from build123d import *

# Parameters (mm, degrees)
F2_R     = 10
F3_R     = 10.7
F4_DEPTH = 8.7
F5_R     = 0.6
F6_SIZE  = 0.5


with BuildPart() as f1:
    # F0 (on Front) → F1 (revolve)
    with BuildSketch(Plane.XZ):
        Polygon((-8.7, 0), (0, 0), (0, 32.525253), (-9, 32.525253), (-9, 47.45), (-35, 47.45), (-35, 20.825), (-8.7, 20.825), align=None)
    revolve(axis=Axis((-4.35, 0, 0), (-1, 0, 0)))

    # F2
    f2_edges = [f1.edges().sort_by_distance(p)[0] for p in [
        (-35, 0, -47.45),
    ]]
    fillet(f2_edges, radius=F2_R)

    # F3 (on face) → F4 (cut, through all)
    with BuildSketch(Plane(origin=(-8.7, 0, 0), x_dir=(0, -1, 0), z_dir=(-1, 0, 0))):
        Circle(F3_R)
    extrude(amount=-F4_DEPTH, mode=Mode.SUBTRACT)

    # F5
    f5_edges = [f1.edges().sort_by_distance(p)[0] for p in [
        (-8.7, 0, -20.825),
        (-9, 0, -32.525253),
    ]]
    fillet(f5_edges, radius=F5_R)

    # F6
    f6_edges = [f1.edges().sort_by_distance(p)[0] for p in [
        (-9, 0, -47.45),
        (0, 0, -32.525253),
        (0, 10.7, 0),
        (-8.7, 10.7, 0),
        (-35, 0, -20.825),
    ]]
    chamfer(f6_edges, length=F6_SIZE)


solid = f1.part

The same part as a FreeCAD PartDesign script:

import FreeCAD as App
import Part
import Sketcher

V = App.Vector


def edges_at(feature, points):
    """Names of the edges that pass closest to the given points."""
    edges = feature.Shape.Edges
    near = lambda p: min(range(len(edges)), key=lambda i: edges[i].distToShape(Part.Vertex(*p))[0])
    return sorted({f"Edge{near(p) + 1}" for p in points})

doc = App.newDocument("Part")
body = doc.addObject("PartDesign::Body", "Body")

# Sketch on XZ plane
sketch1 = body.newObject("Sketcher::SketchObject", "Sketch")
sketch1.AttachmentSupport = (doc.getObject("XZ_Plane"), [""])
sketch1.MapMode = "FlatFace"
sketch1.addGeometry([
    Part.LineSegment(V(-9, 0, 0), V(0, 0, 0)),  # 0
    Part.LineSegment(V(0, 0, 0), V(0, 33, 0)),  # 1
    Part.LineSegment(V(0, 33, 0), V(-9, 33, 0)),  # 2
    Part.LineSegment(V(-9, 33, 0), V(-9, 47, 0)),  # 3
    Part.LineSegment(V(-9, 47, 0), V(-35, 47, 0)),  # 4
    Part.LineSegment(V(-35, 47, 0), V(-35, 21, 0)),  # 5
    Part.LineSegment(V(-35, 21, 0), V(-9, 21, 0)),  # 6
    Part.LineSegment(V(-9, 21, 0), V(-9, 0, 0)),  # 7
], False)
sketch1.addConstraint([
    Sketcher.Constraint("Coincident", 0, 2, 1, 1),
    Sketcher.Constraint("Coincident", 1, 2, 2, 1),
    Sketcher.Constraint("Coincident", 2, 2, 3, 1),
    Sketcher.Constraint("Coincident", 3, 2, 4, 1),
    Sketcher.Constraint("Coincident", 4, 2, 5, 1),
    Sketcher.Constraint("Coincident", 5, 2, 6, 1),
    Sketcher.Constraint("Coincident", 6, 2, 7, 1),
    Sketcher.Constraint("Coincident", 7, 2, 0, 1),
    Sketcher.Constraint("Horizontal", 0),
    Sketcher.Constraint("Vertical", 1),
    Sketcher.Constraint("Horizontal", 2),
    Sketcher.Constraint("Vertical", 3),
    Sketcher.Constraint("Horizontal", 4),
    Sketcher.Constraint("Vertical", 5),
    Sketcher.Constraint("Horizontal", 6),
    Sketcher.Constraint("Vertical", 7),
    Sketcher.Constraint("Coincident", 0, 2, -1, 1),
    Sketcher.Constraint("DistanceX", 2, 2, 2, 1, 9.0),
    Sketcher.Constraint("DistanceX", 4, 2, 4, 1, 26.0),
    Sketcher.Constraint("DistanceX", 0, 1, 0, 2, 8.7),
    Sketcher.Constraint("DistanceY", 5, 2, 5, 1, 26.625),
    Sketcher.Constraint("DistanceY", 7, 2, 7, 1, 20.825),
    Sketcher.Constraint("DistanceY", 1, 1, 1, 2, 32.525253),
])
revolution = body.newObject("PartDesign::Revolution", "Revolution")
revolution.Profile = sketch1
revolution.ReferenceAxis = (sketch1, ["H_Axis"])
revolution.Angle = 360
doc.recompute()

fillet = body.newObject("PartDesign::Fillet", "Fillet")
fillet.Base = (revolution, edges_at(revolution, [(-35, 0, -47.45)]))
fillet.Radius = 10

# Sketch on YZ plane
sketch2 = body.newObject("Sketcher::SketchObject", "Sketch001")
sketch2.AttachmentSupport = (doc.getObject("YZ_Plane"), [""])
sketch2.MapMode = "FlatFace"
sketch2.AttachmentOffset = App.Placement(V(0, 0, -8.7), App.Rotation())
sketch2.addGeometry(Part.Circle(V(0, 0, 0), V(0, 0, 1), 11), False)
sketch2.addConstraint([
    Sketcher.Constraint("Coincident", 0, 3, -1, 1),
    Sketcher.Constraint("Diameter", 0, 21.4),
])
pocket1 = body.newObject("PartDesign::Pocket", "Pocket")
pocket1.Profile = sketch2
pocket1.Type = "ThroughAll"
pocket1.Reversed = True
doc.recompute()

fillet2 = body.newObject("PartDesign::Fillet", "Fillet001")
fillet2.Base = (pocket1, edges_at(pocket1, [(-8.7, 0, -20.825), (-9, 0, -32.525)]))
fillet2.Radius = 0.6
doc.recompute()

chamfer = body.newObject("PartDesign::Chamfer", "Chamfer")
chamfer.Base = (fillet2, edges_at(fillet2, [
    (-9, 0, -47.45),
    (0, 0, -32.525),
    (0, 10.7, 0),
    (-8.7, 10.7, 0),
    (-35, 0, -20.825),
]))
chamfer.Size = 0.5

doc.recompute()
